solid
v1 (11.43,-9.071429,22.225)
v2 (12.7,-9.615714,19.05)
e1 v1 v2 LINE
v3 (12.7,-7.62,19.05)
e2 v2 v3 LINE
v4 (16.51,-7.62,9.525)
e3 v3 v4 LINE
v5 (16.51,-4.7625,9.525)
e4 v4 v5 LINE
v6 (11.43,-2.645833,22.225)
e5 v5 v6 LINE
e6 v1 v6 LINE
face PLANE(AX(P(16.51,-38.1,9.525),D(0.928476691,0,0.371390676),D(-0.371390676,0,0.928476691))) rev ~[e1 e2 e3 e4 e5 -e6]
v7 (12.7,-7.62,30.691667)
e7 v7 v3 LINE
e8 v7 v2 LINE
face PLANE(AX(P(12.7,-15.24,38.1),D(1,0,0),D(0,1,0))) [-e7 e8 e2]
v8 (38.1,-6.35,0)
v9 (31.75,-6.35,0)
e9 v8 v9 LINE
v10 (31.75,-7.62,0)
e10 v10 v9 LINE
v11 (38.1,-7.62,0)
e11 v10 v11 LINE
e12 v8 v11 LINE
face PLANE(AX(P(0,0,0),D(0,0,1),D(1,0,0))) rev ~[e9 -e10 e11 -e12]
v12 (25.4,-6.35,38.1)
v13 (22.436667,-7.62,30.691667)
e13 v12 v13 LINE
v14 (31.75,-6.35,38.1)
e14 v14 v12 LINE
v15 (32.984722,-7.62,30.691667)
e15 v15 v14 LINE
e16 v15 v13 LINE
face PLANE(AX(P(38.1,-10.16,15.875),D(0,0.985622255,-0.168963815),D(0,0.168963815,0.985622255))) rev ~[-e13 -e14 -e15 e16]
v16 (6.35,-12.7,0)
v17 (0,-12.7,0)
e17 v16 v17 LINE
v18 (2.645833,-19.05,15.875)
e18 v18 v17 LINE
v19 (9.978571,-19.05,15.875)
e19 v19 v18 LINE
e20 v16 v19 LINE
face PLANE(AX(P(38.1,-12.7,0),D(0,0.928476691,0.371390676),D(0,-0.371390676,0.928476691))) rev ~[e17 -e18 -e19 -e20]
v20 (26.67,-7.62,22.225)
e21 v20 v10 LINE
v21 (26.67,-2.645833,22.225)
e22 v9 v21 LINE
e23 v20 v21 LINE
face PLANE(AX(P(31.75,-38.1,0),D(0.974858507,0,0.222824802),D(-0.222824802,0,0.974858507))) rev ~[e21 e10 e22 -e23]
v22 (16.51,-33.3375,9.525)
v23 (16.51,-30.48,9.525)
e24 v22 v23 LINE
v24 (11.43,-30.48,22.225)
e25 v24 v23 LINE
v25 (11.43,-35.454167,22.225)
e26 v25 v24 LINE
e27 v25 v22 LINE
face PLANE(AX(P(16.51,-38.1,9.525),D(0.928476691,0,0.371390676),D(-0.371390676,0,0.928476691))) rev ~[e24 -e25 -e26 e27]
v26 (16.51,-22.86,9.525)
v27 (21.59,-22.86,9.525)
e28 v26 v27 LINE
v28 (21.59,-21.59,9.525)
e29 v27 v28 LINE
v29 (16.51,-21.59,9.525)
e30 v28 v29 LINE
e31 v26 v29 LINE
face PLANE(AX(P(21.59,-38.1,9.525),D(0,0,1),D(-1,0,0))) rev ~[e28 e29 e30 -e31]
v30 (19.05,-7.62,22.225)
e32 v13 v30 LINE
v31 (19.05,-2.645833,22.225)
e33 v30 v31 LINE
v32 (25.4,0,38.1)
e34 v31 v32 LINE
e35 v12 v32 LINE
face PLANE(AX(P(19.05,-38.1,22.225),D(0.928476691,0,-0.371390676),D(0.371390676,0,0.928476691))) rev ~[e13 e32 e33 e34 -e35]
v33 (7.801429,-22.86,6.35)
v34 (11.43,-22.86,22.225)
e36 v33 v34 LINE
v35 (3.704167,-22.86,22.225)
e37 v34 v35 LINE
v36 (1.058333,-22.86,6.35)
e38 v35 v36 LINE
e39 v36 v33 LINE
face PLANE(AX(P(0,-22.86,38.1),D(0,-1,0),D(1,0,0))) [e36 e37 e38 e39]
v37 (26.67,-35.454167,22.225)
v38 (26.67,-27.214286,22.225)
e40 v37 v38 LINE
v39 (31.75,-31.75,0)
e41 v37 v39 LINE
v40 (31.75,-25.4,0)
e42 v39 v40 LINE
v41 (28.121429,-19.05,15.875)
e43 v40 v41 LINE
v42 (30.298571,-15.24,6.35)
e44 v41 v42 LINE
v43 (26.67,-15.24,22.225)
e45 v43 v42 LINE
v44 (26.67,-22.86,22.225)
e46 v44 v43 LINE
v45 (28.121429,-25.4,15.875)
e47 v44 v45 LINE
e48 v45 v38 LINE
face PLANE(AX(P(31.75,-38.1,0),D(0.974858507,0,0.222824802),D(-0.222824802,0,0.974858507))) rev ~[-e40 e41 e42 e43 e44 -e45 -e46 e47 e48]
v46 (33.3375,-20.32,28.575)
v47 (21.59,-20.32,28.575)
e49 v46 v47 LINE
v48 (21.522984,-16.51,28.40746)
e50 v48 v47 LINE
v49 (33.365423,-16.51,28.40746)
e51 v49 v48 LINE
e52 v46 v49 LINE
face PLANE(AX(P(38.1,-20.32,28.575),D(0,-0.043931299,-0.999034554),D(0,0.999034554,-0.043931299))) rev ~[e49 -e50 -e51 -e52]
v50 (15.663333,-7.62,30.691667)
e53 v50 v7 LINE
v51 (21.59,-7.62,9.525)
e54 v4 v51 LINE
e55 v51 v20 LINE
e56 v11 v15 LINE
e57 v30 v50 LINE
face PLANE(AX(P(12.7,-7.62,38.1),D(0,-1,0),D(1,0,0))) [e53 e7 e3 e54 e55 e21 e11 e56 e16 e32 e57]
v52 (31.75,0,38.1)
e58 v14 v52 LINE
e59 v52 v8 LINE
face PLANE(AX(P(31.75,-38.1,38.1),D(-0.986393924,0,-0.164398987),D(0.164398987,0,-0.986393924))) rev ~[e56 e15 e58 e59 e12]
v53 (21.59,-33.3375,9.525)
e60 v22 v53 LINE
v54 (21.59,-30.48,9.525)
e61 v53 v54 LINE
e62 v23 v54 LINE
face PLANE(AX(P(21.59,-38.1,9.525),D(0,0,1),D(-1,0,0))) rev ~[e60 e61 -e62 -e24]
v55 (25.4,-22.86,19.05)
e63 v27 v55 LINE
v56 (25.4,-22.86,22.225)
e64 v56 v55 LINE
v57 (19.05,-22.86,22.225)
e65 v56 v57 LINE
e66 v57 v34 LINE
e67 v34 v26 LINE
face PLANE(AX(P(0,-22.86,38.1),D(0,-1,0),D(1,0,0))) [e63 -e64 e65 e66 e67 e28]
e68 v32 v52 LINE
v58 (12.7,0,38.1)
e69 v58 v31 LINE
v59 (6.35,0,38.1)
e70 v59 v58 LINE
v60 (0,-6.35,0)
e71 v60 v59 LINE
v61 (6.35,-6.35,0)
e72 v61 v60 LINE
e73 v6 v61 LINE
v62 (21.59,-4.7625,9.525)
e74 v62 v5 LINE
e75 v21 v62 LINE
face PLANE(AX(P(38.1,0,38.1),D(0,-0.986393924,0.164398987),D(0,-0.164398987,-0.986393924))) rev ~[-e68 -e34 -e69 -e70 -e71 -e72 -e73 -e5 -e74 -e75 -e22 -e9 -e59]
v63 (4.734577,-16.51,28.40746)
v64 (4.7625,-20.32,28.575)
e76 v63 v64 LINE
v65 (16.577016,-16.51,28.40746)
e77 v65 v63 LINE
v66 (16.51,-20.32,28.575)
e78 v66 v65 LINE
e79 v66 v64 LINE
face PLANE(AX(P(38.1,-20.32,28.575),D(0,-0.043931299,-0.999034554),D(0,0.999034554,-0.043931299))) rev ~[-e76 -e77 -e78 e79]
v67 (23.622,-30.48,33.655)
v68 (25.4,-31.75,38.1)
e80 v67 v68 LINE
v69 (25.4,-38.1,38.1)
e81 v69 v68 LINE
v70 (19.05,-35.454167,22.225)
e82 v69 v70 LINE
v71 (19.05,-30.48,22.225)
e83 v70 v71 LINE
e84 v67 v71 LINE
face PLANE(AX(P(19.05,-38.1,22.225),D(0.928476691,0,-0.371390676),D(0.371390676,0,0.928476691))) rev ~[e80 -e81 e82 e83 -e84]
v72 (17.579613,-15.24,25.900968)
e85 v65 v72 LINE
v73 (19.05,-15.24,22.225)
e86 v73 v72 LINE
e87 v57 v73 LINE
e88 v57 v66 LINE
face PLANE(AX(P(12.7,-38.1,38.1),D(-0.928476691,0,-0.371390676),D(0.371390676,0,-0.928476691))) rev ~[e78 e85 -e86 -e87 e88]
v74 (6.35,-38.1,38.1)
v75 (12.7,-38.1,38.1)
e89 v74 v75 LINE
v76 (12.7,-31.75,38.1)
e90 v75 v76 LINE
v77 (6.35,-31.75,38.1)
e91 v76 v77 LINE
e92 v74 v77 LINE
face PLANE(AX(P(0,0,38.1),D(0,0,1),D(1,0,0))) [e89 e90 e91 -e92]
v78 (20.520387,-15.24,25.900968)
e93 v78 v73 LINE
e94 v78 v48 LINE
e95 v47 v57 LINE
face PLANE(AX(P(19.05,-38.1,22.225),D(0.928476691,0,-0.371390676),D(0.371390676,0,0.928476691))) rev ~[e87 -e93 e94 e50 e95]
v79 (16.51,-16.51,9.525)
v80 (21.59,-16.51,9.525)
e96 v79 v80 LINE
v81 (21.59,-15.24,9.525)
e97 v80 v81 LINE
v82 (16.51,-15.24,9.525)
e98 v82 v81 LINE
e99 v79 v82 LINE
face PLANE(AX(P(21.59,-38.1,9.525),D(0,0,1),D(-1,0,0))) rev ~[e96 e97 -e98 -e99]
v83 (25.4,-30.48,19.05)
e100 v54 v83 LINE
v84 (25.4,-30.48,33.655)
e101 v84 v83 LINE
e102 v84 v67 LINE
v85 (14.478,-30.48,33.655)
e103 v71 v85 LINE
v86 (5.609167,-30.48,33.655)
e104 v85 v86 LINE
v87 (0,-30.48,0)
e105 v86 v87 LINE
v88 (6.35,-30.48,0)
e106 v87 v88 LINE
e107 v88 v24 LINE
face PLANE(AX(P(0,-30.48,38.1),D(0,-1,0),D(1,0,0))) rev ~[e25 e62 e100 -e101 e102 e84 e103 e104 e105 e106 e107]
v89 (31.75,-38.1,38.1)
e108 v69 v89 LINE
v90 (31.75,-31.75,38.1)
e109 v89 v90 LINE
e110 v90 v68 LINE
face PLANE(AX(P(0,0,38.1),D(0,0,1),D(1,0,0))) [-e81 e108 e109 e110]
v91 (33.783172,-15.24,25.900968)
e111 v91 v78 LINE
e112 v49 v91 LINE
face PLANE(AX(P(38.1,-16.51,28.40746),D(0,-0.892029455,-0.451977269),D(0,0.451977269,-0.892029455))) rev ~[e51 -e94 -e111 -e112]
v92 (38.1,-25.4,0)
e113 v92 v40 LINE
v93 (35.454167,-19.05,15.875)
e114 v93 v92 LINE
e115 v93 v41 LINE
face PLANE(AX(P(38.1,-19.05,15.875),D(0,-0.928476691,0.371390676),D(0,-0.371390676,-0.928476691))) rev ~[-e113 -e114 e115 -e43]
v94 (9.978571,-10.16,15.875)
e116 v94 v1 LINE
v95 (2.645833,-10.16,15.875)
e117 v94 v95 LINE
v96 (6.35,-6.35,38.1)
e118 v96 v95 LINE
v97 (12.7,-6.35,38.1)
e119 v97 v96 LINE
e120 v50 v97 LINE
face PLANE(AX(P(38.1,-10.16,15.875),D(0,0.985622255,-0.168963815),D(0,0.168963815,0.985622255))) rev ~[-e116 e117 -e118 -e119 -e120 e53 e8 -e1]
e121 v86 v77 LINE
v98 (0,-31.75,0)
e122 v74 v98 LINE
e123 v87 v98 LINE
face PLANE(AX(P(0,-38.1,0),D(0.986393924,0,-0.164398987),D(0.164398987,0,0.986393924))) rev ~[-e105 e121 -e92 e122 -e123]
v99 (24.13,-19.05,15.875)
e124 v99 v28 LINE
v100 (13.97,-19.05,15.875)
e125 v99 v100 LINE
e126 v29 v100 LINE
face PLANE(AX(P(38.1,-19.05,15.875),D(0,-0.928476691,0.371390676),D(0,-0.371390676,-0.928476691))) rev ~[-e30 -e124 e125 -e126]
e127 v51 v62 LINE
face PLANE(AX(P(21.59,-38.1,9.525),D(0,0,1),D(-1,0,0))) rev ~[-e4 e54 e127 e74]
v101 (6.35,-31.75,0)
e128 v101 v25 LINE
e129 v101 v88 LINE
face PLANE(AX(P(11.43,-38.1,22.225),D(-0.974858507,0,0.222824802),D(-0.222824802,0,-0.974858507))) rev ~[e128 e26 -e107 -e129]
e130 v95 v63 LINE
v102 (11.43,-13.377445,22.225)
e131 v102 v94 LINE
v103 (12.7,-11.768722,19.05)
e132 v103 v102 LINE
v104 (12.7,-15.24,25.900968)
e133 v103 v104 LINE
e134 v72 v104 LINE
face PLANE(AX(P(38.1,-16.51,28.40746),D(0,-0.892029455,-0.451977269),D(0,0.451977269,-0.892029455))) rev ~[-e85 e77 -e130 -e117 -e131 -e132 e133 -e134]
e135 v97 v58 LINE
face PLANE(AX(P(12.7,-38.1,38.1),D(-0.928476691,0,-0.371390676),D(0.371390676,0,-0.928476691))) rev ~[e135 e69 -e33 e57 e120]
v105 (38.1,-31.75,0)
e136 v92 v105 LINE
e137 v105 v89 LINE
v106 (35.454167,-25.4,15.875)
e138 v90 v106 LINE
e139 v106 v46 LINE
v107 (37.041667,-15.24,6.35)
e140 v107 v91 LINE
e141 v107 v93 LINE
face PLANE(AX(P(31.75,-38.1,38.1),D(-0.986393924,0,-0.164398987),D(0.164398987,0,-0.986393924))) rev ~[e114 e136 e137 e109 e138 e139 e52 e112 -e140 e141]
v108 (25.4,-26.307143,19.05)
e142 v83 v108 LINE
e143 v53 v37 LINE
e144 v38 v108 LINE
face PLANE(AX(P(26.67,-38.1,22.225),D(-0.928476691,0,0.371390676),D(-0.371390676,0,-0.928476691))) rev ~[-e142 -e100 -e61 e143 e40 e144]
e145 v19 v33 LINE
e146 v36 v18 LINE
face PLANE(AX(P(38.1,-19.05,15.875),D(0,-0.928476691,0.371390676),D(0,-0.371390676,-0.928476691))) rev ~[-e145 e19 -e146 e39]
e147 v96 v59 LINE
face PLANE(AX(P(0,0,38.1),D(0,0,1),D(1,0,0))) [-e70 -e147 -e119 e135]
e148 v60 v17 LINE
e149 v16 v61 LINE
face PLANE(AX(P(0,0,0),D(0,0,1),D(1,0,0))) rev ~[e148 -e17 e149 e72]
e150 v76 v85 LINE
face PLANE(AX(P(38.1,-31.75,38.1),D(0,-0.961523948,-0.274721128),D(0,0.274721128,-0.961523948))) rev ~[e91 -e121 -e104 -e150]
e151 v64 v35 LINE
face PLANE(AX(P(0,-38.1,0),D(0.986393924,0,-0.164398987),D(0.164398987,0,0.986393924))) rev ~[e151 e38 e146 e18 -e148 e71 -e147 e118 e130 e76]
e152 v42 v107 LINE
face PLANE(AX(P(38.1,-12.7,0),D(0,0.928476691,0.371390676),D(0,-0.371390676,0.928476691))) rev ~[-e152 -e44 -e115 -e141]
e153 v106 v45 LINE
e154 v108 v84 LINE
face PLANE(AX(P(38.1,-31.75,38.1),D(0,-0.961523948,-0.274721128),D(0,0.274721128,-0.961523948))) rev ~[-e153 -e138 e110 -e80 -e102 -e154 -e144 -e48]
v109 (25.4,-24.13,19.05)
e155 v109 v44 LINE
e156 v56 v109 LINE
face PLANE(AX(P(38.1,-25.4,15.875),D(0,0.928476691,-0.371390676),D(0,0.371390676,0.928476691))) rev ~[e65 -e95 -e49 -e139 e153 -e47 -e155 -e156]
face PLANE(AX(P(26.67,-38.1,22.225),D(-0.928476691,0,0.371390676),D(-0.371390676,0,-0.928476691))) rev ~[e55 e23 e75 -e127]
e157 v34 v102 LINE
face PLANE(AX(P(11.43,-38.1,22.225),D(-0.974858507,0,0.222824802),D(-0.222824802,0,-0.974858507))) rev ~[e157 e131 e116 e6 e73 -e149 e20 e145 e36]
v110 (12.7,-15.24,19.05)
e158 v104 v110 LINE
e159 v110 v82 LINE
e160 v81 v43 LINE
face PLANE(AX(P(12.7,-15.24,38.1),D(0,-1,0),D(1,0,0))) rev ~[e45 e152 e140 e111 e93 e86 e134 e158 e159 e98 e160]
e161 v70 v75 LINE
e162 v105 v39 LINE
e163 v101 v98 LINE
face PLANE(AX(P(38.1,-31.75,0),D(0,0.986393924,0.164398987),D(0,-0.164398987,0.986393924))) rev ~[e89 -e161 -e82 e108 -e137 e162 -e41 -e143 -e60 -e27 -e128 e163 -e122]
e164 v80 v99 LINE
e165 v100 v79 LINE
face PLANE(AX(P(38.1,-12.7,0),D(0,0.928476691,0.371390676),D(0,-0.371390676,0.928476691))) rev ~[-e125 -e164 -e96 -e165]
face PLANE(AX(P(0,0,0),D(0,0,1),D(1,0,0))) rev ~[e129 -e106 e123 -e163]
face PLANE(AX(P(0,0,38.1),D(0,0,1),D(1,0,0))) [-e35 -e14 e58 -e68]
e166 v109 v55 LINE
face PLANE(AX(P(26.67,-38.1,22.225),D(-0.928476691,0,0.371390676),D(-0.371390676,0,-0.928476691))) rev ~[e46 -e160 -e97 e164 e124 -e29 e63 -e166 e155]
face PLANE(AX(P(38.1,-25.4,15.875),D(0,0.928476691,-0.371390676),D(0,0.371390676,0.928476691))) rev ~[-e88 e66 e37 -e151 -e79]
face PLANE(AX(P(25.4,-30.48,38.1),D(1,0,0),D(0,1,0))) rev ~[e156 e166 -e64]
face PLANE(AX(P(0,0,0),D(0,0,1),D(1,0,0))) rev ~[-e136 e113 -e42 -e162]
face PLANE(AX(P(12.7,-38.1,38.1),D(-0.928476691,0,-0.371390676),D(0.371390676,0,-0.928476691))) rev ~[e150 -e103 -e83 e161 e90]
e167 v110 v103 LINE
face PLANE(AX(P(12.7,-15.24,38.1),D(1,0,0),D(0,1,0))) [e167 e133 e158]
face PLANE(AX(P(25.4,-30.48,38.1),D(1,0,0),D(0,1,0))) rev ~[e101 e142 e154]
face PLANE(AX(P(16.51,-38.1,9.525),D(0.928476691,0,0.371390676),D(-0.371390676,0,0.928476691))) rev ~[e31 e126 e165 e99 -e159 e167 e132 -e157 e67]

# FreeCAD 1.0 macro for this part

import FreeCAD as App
import Part
import Sketcher

V = App.Vector
Q = App.Units.Quantity

doc = App.newDocument("Part")
body = doc.addObject("PartDesign::Body", "Body")

# Sketch on XZ plane
sketch1 = body.newObject("Sketcher::SketchObject", "Sketch")
sketch1.AttachmentSupport = (doc.getObject("XZ_Plane"), [""])
sketch1.MapMode = "FlatFace"
sketch1.addGeometry([
    Part.LineSegment(V(0, 38.1, 0), V(0, 0, 0)),
    Part.LineSegment(V(0, 0, 0), V(38.1, 0, 0)),
    Part.LineSegment(V(38.1, 0, 0), V(38.1, 38.1, 0)),
    Part.LineSegment(V(38.1, 38.1, 0), V(0, 38.1, 0)),
], False)
sketch1.addConstraint([
    Sketcher.Constraint("Coincident", 0, 2, 1, 1),
    Sketcher.Constraint("Coincident", 1, 2, 2, 1),
    Sketcher.Constraint("Coincident", 2, 2, 3, 1),
    Sketcher.Constraint("Coincident", 3, 2, 0, 1),
    Sketcher.Constraint("Vertical", 0),
    Sketcher.Constraint("Horizontal", 1),
    Sketcher.Constraint("Vertical", 2),
    Sketcher.Constraint("Horizontal", 3),
    Sketcher.Constraint("Coincident", 0, 2, -1, 1),
    Sketcher.Constraint("Equal", 3, 0),
    Sketcher.Constraint("DistanceX", 1, 1, 1, 2, Q("1.5 in")),
])
pad1 = body.newObject("PartDesign::Pad", "Pad")
pad1.Profile = sketch1
pad1.Length = Q("1.5 in")

# Sketch on YZ plane
sketch2 = body.newObject("Sketcher::SketchObject", "Sketch001")
sketch2.AttachmentSupport = (doc.getObject("YZ_Plane"), [""])
sketch2.MapMode = "FlatFace"
sketch2.AttachmentOffset = App.Placement(V(0, 0, 1.5 * 25.4), App.Rotation())
sketch2.addGeometry([
    Part.LineSegment(V(-31.75, 0, 0), V(-38.1, 38.1, 0)),  # 0
    Part.LineSegment(V(-38.1, 38.1, 0), V(-38.1, 0, 0)),  # 1
    Part.LineSegment(V(-38.1, 0, 0), V(-31.75, 0, 0)),  # 2
    Part.LineSegment(V(-19.05, 15.875, 0), V(-25.4, 0, 0)),  # 3
    Part.LineSegment(V(-25.4, 0, 0), V(-12.7, 0, 0)),  # 4
    Part.LineSegment(V(-12.7, 0, 0), V(-19.05, 15.875, 0)),  # 5
    Part.LineSegment(V(0, 38.1, 0), V(-6.35, 0, 0)),  # 6
    Part.LineSegment(V(-6.35, 0, 0), V(0, 0, 0)),  # 7
    Part.LineSegment(V(0, 0, 0), V(0, 38.1, 0)),  # 8
    Part.LineSegment(V(-6.35, 38.1, 0), V(-31.75, 38.1, 0)),  # 9
    Part.LineSegment(V(-31.75, 38.1, 0), V(-25.4, 15.875, 0)),  # 10
    Part.LineSegment(V(-25.4, 15.875, 0), V(-20.32, 28.575, 0)),  # 11
    Part.LineSegment(V(-20.32, 28.575, 0), V(-16.51, 28.40746, 0)),  # 12
    Part.LineSegment(V(-16.51, 28.40746, 0), V(-10.16, 15.875, 0)),  # 13
    Part.LineSegment(V(-10.16, 15.875, 0), V(-6.35, 38.1, 0)),  # 14
], False)
sketch2.addConstraint([
    Sketcher.Constraint("Coincident", 0, 2, 1, 1),
    Sketcher.Constraint("Coincident", 1, 2, 2, 1),
    Sketcher.Constraint("Coincident", 2, 2, 0, 1),
    Sketcher.Constraint("Coincident", 3, 2, 4, 1),
    Sketcher.Constraint("Coincident", 4, 2, 5, 1),
    Sketcher.Constraint("Coincident", 5, 2, 3, 1),
    Sketcher.Constraint("Coincident", 6, 2, 7, 1),
    Sketcher.Constraint("Coincident", 7, 2, 8, 1),
    Sketcher.Constraint("Coincident", 8, 2, 6, 1),
    Sketcher.Constraint("Coincident", 9, 2, 10, 1),
    Sketcher.Constraint("Coincident", 10, 2, 11, 1),
    Sketcher.Constraint("Coincident", 11, 2, 12, 1),
    Sketcher.Constraint("Coincident", 12, 2, 13, 1),
    Sketcher.Constraint("Coincident", 13, 2, 14, 1),
    Sketcher.Constraint("Coincident", 14, 2, 9, 1),
    Sketcher.Constraint("Vertical", 1),
    Sketcher.Constraint("Horizontal", 2),
    Sketcher.Constraint("Horizontal", 4),
    Sketcher.Constraint("Horizontal", 7),
    Sketcher.Constraint("Vertical", 8),
    Sketcher.Constraint("Horizontal", 9),
    Sketcher.Constraint("Coincident", 7, 2, -1, 1),
    Sketcher.Constraint("PointOnObject", 1, 2, -1),
    Sketcher.Constraint("PointOnObject", 3, 2, -1),
    Sketcher.Constraint("Parallel", 3, 11),
    Sketcher.Constraint("Horizontal", 0, 2, 8, 2),
    Sketcher.Constraint("Horizontal", 8, 2, 9, 2),
    Sketcher.Constraint("Horizontal", 5, 2, 10, 2),
    Sketcher.Constraint("Horizontal", 10, 2, 13, 2),
    Sketcher.Constraint("Vertical", 2, 2, 9, 2),
    Sketcher.Constraint("Vertical", 3, 2, 10, 2),
    Sketcher.Constraint("Vertical", 6, 2, 14, 2),
    Sketcher.Constraint("Equal", 2, 7),
    Sketcher.Constraint("Equal", 3, 5),
    Sketcher.Constraint("DistanceX", 9, 2, 9, 1, Q("1 in")),
    Sketcher.Constraint("DistanceX", 4, 1, 4, 2, Q("0.5 in")),
    Sketcher.Constraint("DistanceY", 1, 2, 1, 1, Q("1.5 in")),
    Sketcher.Constraint("DistanceX", 3, 2, -1, 1, Q("1 in")),
    Sketcher.Constraint("DistanceX", 1, 2, 4, 2, Q("1 in")),
    Sketcher.Constraint("DistanceX", 11, 2, -1, 1, Q("0.8 in")),
    Sketcher.Constraint("DistanceX", 13, 2, -1, 1, Q("0.4 in")),
    Sketcher.Constraint("DistanceY", 5, 2, 11, 2, Q("0.5 in")),
    Sketcher.Constraint("DistanceX", 5, 2, 12, 2, Q("0.1 in")),
    Sketcher.Constraint("Distance", 12, Q("3.813682 mm")),
])
pocket1 = body.newObject("PartDesign::Pocket", "Pocket")
pocket1.Profile = sketch2
pocket1.Length = Q("1.5 in")

# Sketch on XZ plane
sketch3 = body.newObject("Sketcher::SketchObject", "Sketch002")
sketch3.AttachmentSupport = (doc.getObject("XZ_Plane"), [""])
sketch3.MapMode = "FlatFace"
sketch3.AttachmentOffset = App.Placement(V(0, 0, 1.5 * 25.4), App.Rotation())
sketch3.addGeometry([
    Part.LineSegment(V(31.75, 38.1, 0), V(38.1, 0, 0)),  # 0
    Part.LineSegment(V(38.1, 0, 0), V(38.1, 38.1, 0)),  # 1
    Part.LineSegment(V(38.1, 38.1, 0), V(31.75, 38.1, 0)),  # 2
    Part.LineSegment(V(25.4, 38.1, 0), V(12.7, 38.1, 0)),  # 3
    Part.LineSegment(V(12.7, 38.1, 0), V(19.05, 22.225, 0)),  # 4
    Part.LineSegment(V(19.05, 22.225, 0), V(25.4, 38.1, 0)),  # 5
    Part.LineSegment(V(0, 38.1, 0), V(0, 0, 0)),  # 6
    Part.LineSegment(V(0, 0, 0), V(6.35, 38.1, 0)),  # 7
    Part.LineSegment(V(6.35, 38.1, 0), V(0, 38.1, 0)),  # 8
    Part.LineSegment(V(11.43, 22.225, 0), V(6.35, 0, 0)),  # 9
    Part.LineSegment(V(6.35, 0, 0), V(31.75, 0, 0)),  # 10
    Part.LineSegment(V(31.75, 0, 0), V(26.67, 22.225, 0)),  # 11
    Part.LineSegment(V(26.67, 22.225, 0), V(21.59, 9.525, 0)),  # 12
    Part.LineSegment(V(21.59, 9.525, 0), V(16.51, 9.525, 0)),  # 13
    Part.LineSegment(V(16.51, 9.525, 0), V(11.43, 22.225, 0)),  # 14
], False)
sketch3.addConstraint([
    Sketcher.Constraint("Coincident", 0, 2, 1, 1),
    Sketcher.Constraint("Coincident", 1, 2, 2, 1),
    Sketcher.Constraint("Coincident", 2, 2, 0, 1),
    Sketcher.Constraint("Coincident", 3, 2, 4, 1),
    Sketcher.Constraint("Coincident", 4, 2, 5, 1),
    Sketcher.Constraint("Coincident", 5, 2, 3, 1),
    Sketcher.Constraint("Coincident", 6, 2, 7, 1),
    Sketcher.Constraint("Coincident", 7, 2, 8, 1),
    Sketcher.Constraint("Coincident", 8, 2, 6, 1),
    Sketcher.Constraint("Coincident", 9, 2, 10, 1),
    Sketcher.Constraint("Coincident", 10, 2, 11, 1),
    Sketcher.Constraint("Coincident", 11, 2, 12, 1),
    Sketcher.Constraint("Coincident", 12, 2, 13, 1),
    Sketcher.Constraint("Coincident", 13, 2, 14, 1),
    Sketcher.Constraint("Coincident", 14, 2, 9, 1),
    Sketcher.Constraint("Vertical", 1),
    Sketcher.Constraint("Horizontal", 2),
    Sketcher.Constraint("Horizontal", 3),
    Sketcher.Constraint("Vertical", 6),
    Sketcher.Constraint("Horizontal", 8),
    Sketcher.Constraint("Horizontal", 10),
    Sketcher.Constraint("Horizontal", 13),
    Sketcher.Constraint("Coincident", 6, 2, -1, 1),
    Sketcher.Constraint("PointOnObject", 0, 2, -1),
    Sketcher.Constraint("PointOnObject", 9, 2, -1),
    Sketcher.Constraint("Parallel", 5, 12),
    Sketcher.Constraint("Parallel", 4, 14),
    Sketcher.Constraint("Horizontal", 2, 2, 3, 2),
    Sketcher.Constraint("Horizontal", 5, 2, 7, 2),
    Sketcher.Constraint("Horizontal", 4, 2, 11, 2),
    Sketcher.Constraint("Horizontal", 11, 2, 14, 2),
    Sketcher.Constraint("Vertical", 7, 2, 9, 2),
    Sketcher.Constraint("Vertical", 2, 2, 10, 2),
    Sketcher.Constraint("Equal", 2, 8),
    Sketcher.Constraint("Equal", 4, 5),
    Sketcher.Constraint("Equal", 9, 11),
    Sketcher.Constraint("DistanceX", 10, 1, 10, 2, Q("1 in")),
    Sketcher.Constraint("DistanceX", 3, 2, 3, 1, Q("0.5 in")),
    Sketcher.Constraint("DistanceX", 13, 2, 13, 1, Q("0.2 in")),
    Sketcher.Constraint("DistanceY", 1, 1, 1, 2, Q("1.5 in")),
    Sketcher.Constraint("DistanceX", -1, 1, 5, 2, Q("1 in")),
    Sketcher.Constraint("DistanceX", 3, 2, 1, 2, Q("1 in")),
    Sketcher.Constraint("DistanceX", 4, 2, 11, 2, Q("0.3 in")),
    Sketcher.Constraint("DistanceY", 12, 2, 4, 2, Q("0.5 in")),
])
pocket2 = body.newObject("PartDesign::Pocket", "Pocket001")
pocket2.Profile = sketch3
pocket2.Length = Q("1.5 in")

# Sketch on XY plane
sketch4 = body.newObject("Sketcher::SketchObject", "Sketch003")
sketch4.AttachmentSupport = (doc.getObject("XY_Plane"), [""])
sketch4.MapMode = "FlatFace"
sketch4.AttachmentOffset = App.Placement(V(0, 0, 1.5 * 25.4), App.Rotation())
sketch4.addGeometry([
    Part.LineSegment(V(12.7, -7.62, 0), V(12.7, -15.24, 0)),  # 0
    Part.LineSegment(V(12.7, -15.24, 0), V(38.1, -15.24, 0)),  # 1
    Part.LineSegment(V(38.1, -15.24, 0), V(38.1, -7.62, 0)),  # 2
    Part.LineSegment(V(38.1, -7.62, 0), V(12.7, -7.62, 0)),  # 3
    Part.LineSegment(V(0, -22.86, 0), V(0, -30.48, 0)),  # 4
    Part.LineSegment(V(0, -30.48, 0), V(25.4, -30.48, 0)),  # 5
    Part.LineSegment(V(25.4, -30.48, 0), V(25.4, -22.86, 0)),  # 6
    Part.LineSegment(V(25.4, -22.86, 0), V(0, -22.86, 0)),  # 7
], False)
sketch4.addConstraint([
    Sketcher.Constraint("Coincident", 0, 2, 1, 1),
    Sketcher.Constraint("Coincident", 1, 2, 2, 1),
    Sketcher.Constraint("Coincident", 2, 2, 3, 1),
    Sketcher.Constraint("Coincident", 3, 2, 0, 1),
    Sketcher.Constraint("Coincident", 4, 2, 5, 1),
    Sketcher.Constraint("Coincident", 5, 2, 6, 1),
    Sketcher.Constraint("Coincident", 6, 2, 7, 1),
    Sketcher.Constraint("Coincident", 7, 2, 4, 1),
    Sketcher.Constraint("Vertical", 0),
    Sketcher.Constraint("Horizontal", 1),
    Sketcher.Constraint("Vertical", 2),
    Sketcher.Constraint("Horizontal", 3),
    Sketcher.Constraint("Vertical", 4),
    Sketcher.Constraint("Horizontal", 5),
    Sketcher.Constraint("Vertical", 6),
    Sketcher.Constraint("Horizontal", 7),
    Sketcher.Constraint("PointOnObject", 4, 2, -2),
    Sketcher.Constraint("Equal", 3, 5),
    Sketcher.Constraint("Equal", 2, 4),
    Sketcher.Constraint("DistanceX", 1, 1, 1, 2, Q("1 in")),
    Sketcher.Constraint("DistanceY", 0, 2, 0, 1, Q("0.3 in")),
    Sketcher.Constraint("DistanceX", -1, 1, 0, 2, Q("0.5 in")),
    Sketcher.Constraint("DistanceY", 0, 2, -1, 1, Q("0.6 in")),
    Sketcher.Constraint("DistanceY", 4, 2, -1, 1, Q("1.2 in")),
])
pocket3 = body.newObject("PartDesign::Pocket", "Pocket002")
pocket3.Profile = sketch4
pocket3.Length = Q("1.5 in")

doc.recompute()
